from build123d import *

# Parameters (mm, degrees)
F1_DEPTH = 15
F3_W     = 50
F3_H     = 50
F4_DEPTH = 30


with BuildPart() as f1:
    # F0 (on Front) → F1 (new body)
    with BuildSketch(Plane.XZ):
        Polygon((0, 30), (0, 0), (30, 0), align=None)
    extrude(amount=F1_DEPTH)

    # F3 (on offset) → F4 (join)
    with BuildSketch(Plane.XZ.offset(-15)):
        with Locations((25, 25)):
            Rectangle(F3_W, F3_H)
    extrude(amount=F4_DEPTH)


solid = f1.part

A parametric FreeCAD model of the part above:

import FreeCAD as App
import Part
import Sketcher

V = App.Vector

doc = App.newDocument("Part")
body = doc.addObject("PartDesign::Body", "Body")

# Sketch on XZ plane
sketch1 = body.newObject("Sketcher::SketchObject", "Sketch")
sketch1.AttachmentSupport = (doc.getObject("XZ_Plane"), [""])
sketch1.MapMode = "FlatFace"
sketch1.addGeometry(Part.LineSegment(V(0, 30, 0), V(0, 0, 0)), False)
sketch1.addGeometry(Part.LineSegment(V(0, 0, 0), V(30, 0, 0)), False)
sketch1.addGeometry(Part.LineSegment(V(30, 0, 0), V(0, 30, 0)), False)
sketch1.addConstraint(Sketcher.Constraint("Coincident", 0, 2, 1, 1))
sketch1.addConstraint(Sketcher.Constraint("Coincident", 1, 2, 2, 1))
sketch1.addConstraint(Sketcher.Constraint("Coincident", 2, 2, 0, 1))
sketch1.addConstraint(Sketcher.Constraint("Vertical", 0))
sketch1.addConstraint(Sketcher.Constraint("Horizontal", 1))
sketch1.addConstraint(Sketcher.Constraint("Coincident", 0, 2, -1, 1))
sketch1.addConstraint(Sketcher.Constraint("Equal", 1, 0))
sketch1.addConstraint(Sketcher.Constraint("DistanceX", 1, 1, 1, 2, 30.0))
pad1 = body.newObject("PartDesign::Pad", "Pad")
pad1.Profile = sketch1
pad1.Length = 15

# Sketch on XZ plane
sketch2 = body.newObject("Sketcher::SketchObject", "Sketch001")
sketch2.AttachmentSupport = (doc.getObject("XZ_Plane"), [""])
sketch2.MapMode = "FlatFace"
sketch2.AttachmentOffset = App.Placement(V(0, 0, -15), App.Rotation())
sketch2.addGeometry(Part.LineSegment(V(0, 50, 0), V(0, 0, 0)), False)
sketch2.addGeometry(Part.LineSegment(V(0, 0, 0), V(50, 0, 0)), False)
sketch2.addGeometry(Part.LineSegment(V(50, 0, 0), V(50, 50, 0)), False)
sketch2.addGeometry(Part.LineSegment(V(50, 50, 0), V(0, 50, 0)), False)
sketch2.addConstraint(Sketcher.Constraint("Coincident", 0, 2, 1, 1))
sketch2.addConstraint(Sketcher.Constraint("Coincident", 1, 2, 2, 1))
sketch2.addConstraint(Sketcher.Constraint("Coincident", 2, 2, 3, 1))
sketch2.addConstraint(Sketcher.Constraint("Coincident", 3, 2, 0, 1))
sketch2.addConstraint(Sketcher.Constraint("Vertical", 0))
sketch2.addConstraint(Sketcher.Constraint("Horizontal", 1))
sketch2.addConstraint(Sketcher.Constraint("Vertical", 2))
sketch2.addConstraint(Sketcher.Constraint("Horizontal", 3))
sketch2.addConstraint(Sketcher.Constraint("Coincident", 0, 2, -1, 1))
sketch2.addConstraint(Sketcher.Constraint("Equal", 3, 0))
sketch2.addConstraint(Sketcher.Constraint("DistanceX", 1, 1, 1, 2, 50.0))
pad2 = body.newObject("PartDesign::Pad", "Pad001")
pad2.Profile = sketch2
pad2.Length = 30

doc.recompute()
